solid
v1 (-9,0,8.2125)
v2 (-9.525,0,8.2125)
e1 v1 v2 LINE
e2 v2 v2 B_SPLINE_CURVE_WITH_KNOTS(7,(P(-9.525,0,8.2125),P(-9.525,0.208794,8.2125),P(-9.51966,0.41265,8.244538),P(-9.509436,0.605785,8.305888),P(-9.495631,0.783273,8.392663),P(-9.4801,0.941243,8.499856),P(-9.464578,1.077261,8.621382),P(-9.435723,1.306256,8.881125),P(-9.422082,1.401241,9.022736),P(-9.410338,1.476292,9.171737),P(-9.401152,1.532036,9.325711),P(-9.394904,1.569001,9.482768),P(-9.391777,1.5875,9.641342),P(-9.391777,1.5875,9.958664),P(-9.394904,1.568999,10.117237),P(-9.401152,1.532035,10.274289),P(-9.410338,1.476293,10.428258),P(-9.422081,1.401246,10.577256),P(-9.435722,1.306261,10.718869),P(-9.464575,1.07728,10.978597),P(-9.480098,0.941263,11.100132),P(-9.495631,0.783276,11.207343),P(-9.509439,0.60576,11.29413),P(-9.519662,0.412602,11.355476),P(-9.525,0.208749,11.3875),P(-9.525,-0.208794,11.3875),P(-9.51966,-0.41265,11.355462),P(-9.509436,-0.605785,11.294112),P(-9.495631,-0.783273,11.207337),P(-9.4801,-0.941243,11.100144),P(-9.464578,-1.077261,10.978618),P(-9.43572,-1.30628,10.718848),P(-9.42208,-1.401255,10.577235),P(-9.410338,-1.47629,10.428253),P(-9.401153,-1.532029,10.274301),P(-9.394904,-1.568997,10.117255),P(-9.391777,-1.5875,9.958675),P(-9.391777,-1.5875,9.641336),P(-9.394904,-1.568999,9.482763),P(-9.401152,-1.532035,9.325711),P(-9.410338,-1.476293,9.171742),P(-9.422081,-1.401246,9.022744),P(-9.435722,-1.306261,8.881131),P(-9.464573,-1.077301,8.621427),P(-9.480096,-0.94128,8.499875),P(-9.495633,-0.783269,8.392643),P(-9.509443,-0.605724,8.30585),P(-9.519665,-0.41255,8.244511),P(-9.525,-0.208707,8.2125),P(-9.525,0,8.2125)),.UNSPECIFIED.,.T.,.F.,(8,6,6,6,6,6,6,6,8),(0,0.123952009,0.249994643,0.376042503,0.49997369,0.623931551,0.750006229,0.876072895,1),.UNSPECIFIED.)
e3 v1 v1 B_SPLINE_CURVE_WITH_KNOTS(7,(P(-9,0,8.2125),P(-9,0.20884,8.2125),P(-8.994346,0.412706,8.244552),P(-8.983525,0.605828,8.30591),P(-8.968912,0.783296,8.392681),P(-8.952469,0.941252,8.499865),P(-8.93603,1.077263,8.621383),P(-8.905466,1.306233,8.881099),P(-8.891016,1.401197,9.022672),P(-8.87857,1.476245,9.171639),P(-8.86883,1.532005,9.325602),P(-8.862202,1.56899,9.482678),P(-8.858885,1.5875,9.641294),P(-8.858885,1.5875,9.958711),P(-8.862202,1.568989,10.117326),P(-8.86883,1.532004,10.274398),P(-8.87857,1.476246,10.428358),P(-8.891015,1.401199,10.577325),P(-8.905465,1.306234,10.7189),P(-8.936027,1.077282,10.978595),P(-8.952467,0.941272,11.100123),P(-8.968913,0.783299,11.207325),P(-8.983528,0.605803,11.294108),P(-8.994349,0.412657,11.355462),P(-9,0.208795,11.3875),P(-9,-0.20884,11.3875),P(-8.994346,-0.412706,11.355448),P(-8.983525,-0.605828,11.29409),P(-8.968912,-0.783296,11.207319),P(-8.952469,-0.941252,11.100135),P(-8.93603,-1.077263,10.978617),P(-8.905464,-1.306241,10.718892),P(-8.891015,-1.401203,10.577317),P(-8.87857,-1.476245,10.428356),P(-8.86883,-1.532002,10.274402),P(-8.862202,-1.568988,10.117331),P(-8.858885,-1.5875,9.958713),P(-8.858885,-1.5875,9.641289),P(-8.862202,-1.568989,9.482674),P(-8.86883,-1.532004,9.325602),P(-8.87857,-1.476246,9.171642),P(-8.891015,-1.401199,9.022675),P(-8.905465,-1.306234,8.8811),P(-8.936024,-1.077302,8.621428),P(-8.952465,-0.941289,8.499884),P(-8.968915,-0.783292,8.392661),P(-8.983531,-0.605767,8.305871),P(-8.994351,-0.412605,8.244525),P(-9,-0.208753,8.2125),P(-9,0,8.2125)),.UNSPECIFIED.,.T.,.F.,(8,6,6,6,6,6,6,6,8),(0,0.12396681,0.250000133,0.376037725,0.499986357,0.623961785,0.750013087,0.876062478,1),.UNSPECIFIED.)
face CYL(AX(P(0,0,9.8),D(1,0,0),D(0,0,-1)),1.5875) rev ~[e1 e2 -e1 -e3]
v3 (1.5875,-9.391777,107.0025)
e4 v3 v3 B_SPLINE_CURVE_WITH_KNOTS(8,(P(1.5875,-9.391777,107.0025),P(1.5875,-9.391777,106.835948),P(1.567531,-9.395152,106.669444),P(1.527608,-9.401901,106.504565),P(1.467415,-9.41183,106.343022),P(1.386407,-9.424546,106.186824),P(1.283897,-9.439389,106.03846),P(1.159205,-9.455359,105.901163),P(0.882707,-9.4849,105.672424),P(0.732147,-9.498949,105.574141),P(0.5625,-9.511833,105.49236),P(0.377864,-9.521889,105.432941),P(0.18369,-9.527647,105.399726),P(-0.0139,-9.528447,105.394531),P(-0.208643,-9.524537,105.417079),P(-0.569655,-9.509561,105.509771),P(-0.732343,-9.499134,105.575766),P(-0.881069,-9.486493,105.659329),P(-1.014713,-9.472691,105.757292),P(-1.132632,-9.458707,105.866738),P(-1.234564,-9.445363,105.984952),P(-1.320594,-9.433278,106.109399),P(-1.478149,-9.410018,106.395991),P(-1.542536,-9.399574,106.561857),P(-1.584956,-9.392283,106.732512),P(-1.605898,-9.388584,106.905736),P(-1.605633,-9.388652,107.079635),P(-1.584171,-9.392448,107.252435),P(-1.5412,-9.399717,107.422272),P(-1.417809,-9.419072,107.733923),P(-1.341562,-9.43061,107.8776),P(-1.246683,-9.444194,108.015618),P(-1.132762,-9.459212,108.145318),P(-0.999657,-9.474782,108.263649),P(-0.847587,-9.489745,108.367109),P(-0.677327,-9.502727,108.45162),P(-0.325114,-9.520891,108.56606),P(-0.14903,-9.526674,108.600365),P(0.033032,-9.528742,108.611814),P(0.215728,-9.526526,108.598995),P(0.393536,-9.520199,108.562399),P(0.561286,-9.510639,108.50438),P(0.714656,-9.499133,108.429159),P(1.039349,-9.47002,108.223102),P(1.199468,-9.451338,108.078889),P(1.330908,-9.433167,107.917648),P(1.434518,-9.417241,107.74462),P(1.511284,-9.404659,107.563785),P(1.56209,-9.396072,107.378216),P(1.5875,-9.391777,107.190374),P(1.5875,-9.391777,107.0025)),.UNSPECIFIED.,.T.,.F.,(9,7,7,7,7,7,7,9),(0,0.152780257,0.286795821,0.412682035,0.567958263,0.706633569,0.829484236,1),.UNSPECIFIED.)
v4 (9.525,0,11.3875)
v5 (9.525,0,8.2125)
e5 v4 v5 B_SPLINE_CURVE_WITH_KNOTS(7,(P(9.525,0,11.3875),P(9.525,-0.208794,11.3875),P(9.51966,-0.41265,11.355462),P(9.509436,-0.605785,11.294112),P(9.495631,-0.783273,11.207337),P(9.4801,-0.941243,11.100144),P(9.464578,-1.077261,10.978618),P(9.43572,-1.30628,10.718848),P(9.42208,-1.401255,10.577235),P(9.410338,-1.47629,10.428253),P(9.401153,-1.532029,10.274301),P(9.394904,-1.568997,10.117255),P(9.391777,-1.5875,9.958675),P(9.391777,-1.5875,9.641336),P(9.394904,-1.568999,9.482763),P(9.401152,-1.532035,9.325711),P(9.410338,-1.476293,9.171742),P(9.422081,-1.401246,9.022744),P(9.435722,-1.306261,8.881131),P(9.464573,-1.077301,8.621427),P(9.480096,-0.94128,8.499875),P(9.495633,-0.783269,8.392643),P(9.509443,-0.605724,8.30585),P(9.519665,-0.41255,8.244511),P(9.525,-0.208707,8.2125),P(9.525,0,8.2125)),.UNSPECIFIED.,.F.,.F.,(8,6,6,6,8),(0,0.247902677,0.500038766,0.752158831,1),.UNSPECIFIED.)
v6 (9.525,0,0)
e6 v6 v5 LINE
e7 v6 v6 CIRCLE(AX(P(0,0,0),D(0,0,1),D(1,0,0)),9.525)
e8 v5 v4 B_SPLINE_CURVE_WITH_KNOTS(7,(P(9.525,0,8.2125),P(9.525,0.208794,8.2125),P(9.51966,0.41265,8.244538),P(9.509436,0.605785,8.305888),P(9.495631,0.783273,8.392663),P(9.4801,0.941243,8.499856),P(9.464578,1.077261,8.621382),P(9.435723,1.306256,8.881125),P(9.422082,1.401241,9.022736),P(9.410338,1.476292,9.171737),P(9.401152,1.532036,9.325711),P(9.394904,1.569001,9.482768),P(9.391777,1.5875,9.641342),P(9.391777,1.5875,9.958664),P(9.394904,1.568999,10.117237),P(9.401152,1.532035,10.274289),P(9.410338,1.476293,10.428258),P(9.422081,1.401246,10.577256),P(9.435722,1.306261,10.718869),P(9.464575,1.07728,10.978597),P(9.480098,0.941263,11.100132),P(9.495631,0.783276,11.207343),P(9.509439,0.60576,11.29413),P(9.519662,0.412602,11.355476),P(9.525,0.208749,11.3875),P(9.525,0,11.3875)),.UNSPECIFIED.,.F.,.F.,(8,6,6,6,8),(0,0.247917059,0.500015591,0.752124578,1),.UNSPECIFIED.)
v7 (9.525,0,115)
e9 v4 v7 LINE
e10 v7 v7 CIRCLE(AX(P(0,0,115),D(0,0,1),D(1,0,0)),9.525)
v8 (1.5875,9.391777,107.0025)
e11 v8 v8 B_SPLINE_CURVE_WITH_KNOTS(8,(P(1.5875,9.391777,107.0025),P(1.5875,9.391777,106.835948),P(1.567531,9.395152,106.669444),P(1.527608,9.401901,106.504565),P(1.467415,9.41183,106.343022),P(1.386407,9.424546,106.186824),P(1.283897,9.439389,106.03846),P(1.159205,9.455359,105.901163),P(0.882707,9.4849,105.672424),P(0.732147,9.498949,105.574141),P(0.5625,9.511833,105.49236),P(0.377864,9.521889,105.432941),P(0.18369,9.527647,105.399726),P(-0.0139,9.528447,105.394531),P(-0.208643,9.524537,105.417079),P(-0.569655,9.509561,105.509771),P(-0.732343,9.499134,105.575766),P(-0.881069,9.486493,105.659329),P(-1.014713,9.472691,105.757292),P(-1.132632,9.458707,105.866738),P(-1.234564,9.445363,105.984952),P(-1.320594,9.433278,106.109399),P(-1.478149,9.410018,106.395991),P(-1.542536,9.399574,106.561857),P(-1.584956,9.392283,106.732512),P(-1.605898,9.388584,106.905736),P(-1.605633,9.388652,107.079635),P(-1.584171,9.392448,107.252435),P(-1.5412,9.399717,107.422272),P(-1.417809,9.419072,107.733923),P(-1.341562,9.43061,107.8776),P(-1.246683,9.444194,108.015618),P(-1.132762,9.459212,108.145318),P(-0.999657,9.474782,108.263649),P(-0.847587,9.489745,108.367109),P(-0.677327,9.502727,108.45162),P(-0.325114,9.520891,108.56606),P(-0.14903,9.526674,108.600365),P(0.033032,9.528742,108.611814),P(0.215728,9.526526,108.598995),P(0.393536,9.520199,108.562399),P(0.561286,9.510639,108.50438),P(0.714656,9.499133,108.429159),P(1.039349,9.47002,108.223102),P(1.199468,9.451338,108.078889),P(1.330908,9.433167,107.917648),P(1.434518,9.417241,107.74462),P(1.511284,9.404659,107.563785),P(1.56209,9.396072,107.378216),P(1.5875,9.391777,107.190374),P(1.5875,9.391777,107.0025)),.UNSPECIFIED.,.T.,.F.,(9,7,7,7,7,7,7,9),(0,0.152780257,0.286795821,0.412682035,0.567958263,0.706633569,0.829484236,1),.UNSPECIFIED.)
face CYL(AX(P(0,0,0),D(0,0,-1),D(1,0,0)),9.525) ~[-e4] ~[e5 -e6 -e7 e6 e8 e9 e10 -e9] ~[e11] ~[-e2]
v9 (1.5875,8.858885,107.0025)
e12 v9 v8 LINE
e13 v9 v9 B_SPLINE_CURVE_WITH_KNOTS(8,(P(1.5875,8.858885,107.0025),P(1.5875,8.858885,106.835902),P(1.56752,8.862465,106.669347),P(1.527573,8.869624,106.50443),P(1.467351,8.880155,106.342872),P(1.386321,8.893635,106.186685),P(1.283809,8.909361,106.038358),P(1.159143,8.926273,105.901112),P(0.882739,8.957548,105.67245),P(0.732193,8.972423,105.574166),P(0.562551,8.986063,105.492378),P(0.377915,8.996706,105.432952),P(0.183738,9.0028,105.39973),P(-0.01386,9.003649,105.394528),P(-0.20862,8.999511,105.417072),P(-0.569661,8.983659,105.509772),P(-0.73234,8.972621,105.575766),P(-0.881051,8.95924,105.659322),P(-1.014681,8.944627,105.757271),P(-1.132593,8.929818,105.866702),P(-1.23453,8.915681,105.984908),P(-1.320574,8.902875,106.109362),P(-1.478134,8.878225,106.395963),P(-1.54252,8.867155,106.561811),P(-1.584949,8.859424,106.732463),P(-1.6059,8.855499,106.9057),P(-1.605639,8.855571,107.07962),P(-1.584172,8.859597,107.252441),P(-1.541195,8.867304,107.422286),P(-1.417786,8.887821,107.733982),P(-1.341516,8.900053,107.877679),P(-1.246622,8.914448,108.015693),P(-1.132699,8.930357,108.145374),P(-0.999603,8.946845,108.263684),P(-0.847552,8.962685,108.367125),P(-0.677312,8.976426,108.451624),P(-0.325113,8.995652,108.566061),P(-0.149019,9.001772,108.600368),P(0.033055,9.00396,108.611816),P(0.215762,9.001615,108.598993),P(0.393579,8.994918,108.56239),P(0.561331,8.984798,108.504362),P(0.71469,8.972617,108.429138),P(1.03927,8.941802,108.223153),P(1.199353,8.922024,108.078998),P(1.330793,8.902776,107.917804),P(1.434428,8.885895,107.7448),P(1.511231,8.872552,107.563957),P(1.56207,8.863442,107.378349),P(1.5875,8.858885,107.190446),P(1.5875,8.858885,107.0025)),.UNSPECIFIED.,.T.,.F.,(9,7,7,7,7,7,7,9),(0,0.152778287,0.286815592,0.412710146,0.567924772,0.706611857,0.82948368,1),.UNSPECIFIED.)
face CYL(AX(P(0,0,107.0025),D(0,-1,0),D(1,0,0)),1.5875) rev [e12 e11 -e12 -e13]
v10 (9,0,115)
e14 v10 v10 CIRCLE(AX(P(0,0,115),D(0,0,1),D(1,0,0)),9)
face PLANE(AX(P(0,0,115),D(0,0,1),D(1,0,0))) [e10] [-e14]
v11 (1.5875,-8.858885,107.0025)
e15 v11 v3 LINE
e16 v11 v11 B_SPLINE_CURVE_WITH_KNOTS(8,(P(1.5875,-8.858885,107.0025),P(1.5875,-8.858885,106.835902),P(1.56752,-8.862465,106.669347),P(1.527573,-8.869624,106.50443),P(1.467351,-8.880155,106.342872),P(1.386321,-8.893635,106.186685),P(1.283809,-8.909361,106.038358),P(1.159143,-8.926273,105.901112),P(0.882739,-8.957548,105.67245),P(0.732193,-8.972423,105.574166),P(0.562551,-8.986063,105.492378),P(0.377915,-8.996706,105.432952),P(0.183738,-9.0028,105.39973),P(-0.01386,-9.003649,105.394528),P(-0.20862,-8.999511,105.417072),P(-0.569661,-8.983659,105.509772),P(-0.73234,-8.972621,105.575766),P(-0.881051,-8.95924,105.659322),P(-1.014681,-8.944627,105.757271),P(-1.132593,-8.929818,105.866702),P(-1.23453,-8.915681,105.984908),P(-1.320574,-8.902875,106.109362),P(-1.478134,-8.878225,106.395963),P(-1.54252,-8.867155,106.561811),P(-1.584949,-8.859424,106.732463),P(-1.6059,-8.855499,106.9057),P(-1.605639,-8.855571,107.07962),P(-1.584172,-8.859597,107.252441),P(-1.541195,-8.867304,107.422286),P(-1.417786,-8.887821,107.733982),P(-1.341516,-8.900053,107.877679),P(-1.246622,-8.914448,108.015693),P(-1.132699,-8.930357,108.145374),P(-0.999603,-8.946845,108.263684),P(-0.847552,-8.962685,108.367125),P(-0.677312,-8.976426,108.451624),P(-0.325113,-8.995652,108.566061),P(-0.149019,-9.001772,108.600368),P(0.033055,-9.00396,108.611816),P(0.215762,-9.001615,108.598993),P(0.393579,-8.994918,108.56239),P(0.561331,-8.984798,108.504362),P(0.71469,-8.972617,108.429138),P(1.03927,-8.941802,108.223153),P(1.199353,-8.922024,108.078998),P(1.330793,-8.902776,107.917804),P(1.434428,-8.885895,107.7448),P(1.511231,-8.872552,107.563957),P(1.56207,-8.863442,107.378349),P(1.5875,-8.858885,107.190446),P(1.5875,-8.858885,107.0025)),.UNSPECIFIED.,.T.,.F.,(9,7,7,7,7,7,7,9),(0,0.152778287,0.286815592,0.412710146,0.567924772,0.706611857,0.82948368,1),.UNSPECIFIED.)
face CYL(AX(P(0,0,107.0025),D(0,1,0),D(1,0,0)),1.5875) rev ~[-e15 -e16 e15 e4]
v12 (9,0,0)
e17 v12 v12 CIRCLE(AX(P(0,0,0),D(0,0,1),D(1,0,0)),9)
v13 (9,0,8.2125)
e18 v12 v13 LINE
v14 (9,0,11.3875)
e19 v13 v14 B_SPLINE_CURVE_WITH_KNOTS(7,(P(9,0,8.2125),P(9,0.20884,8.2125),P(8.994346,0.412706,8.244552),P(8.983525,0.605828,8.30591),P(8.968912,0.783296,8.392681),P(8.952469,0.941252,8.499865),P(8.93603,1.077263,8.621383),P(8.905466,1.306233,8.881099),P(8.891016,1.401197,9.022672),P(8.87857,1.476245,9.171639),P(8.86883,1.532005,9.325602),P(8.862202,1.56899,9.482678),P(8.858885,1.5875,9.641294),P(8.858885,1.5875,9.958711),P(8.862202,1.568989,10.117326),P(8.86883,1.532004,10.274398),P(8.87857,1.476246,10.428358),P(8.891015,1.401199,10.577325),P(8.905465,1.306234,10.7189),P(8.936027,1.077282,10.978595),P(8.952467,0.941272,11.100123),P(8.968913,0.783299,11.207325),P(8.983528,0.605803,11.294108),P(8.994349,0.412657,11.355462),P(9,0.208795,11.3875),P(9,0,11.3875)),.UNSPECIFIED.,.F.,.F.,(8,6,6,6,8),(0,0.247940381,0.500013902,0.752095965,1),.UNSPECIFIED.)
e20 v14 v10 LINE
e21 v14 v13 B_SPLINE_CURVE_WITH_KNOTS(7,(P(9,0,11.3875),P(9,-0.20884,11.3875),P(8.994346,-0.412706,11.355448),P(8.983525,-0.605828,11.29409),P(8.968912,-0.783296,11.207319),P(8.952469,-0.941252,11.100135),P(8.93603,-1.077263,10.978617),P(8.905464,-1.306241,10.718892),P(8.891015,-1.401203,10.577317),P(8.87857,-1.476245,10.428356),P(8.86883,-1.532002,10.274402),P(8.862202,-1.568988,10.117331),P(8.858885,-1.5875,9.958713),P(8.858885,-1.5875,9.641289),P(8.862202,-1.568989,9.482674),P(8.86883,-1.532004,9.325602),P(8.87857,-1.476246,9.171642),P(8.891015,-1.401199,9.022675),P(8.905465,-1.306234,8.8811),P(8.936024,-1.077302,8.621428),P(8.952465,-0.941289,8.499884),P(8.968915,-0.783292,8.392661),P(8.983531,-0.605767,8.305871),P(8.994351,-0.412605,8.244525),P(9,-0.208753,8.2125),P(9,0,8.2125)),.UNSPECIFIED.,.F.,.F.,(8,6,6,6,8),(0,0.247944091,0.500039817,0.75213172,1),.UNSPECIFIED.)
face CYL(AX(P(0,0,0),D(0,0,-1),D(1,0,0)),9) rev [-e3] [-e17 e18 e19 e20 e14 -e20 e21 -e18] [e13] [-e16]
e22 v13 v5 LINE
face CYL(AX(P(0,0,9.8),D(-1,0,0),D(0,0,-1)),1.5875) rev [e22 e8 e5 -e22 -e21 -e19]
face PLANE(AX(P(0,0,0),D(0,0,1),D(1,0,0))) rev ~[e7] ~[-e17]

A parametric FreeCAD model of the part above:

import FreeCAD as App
import Part
import Sketcher
from FreeCAD import Vector
Q = App.Units.Quantity

doc = App.newDocument("Part")
body = doc.addObject("PartDesign::Body", "Body")

# Sketch on XY plane
sketch1 = doc.addObject("Sketcher::SketchObject", "Sketch")
body.addObject(sketch1)
sketch1.AttachmentSupport = (doc.XY_Plane, [""])
sketch1.MapMode = "FlatFace"
sketch1.addGeometry([
    Part.Circle(Vector(0, 0, 0), Vector(0, 0, 1), 9.525),
    Part.Circle(Vector(0, 0, 0), Vector(0, 0, 1), 9),
], False)
sketch1.addConstraint([
    Sketcher.Constraint("Coincident", 0, 3, -1, 1),
    Sketcher.Constraint("Coincident", 1, 3, -1, 1),
    Sketcher.Constraint("Diameter", 1, Q("18 mm")),
    Sketcher.Constraint("Diameter", 0, Q("19.05 mm")),
])
pad1 = doc.addObject("PartDesign::Pad", "Pad")
body.addObject(pad1)
pad1.Profile = sketch1
pad1.Length = 115

# Sketch on YZ plane
sketch2 = doc.addObject("Sketcher::SketchObject", "Sketch001")
body.addObject(sketch2)
sketch2.AttachmentSupport = (doc.YZ_Plane, [""])
sketch2.MapMode = "FlatFace"
sketch2.addGeometry(Part.Circle(Vector(0, 9.8, 0), Vector(0, 0, 1), 1.5875), False)
sketch2.addConstraint([
    Sketcher.Constraint("PointOnObject", 0, 3, -2),
    Sketcher.Constraint("Diameter", 0, Q("3.175 mm")),
    Sketcher.Constraint("DistanceY", -1, 1, 0, 3, Q("9.8 mm")),
])
pocket1 = doc.addObject("PartDesign::Pocket", "Pocket")
body.addObject(pocket1)
pocket1.Profile = sketch2
pocket1.Type = "ThroughAll"
pocket1.Midplane = True

# Sketch on XZ plane
sketch3 = doc.addObject("Sketcher::SketchObject", "Sketch002")
body.addObject(sketch3)
sketch3.AttachmentSupport = (doc.XZ_Plane, [""])
sketch3.MapMode = "FlatFace"
sketch3.addGeometry(Part.Circle(Vector(0, 107.0025, 0), Vector(0, 0, 1), 1.5875), False)
sketch3.addConstraint([
    Sketcher.Constraint("PointOnObject", 0, 3, -2),
    Sketcher.Constraint("Diameter", 0, Q("3.175 mm")),
    Sketcher.Constraint("DistanceY", -1, 1, 0, 3, Q("107.0025 mm")),
])
pocket2 = doc.addObject("PartDesign::Pocket", "Pocket001")
body.addObject(pocket2)
pocket2.Profile = sketch3
pocket2.Type = "ThroughAll"
pocket2.Midplane = True

doc.recompute()
